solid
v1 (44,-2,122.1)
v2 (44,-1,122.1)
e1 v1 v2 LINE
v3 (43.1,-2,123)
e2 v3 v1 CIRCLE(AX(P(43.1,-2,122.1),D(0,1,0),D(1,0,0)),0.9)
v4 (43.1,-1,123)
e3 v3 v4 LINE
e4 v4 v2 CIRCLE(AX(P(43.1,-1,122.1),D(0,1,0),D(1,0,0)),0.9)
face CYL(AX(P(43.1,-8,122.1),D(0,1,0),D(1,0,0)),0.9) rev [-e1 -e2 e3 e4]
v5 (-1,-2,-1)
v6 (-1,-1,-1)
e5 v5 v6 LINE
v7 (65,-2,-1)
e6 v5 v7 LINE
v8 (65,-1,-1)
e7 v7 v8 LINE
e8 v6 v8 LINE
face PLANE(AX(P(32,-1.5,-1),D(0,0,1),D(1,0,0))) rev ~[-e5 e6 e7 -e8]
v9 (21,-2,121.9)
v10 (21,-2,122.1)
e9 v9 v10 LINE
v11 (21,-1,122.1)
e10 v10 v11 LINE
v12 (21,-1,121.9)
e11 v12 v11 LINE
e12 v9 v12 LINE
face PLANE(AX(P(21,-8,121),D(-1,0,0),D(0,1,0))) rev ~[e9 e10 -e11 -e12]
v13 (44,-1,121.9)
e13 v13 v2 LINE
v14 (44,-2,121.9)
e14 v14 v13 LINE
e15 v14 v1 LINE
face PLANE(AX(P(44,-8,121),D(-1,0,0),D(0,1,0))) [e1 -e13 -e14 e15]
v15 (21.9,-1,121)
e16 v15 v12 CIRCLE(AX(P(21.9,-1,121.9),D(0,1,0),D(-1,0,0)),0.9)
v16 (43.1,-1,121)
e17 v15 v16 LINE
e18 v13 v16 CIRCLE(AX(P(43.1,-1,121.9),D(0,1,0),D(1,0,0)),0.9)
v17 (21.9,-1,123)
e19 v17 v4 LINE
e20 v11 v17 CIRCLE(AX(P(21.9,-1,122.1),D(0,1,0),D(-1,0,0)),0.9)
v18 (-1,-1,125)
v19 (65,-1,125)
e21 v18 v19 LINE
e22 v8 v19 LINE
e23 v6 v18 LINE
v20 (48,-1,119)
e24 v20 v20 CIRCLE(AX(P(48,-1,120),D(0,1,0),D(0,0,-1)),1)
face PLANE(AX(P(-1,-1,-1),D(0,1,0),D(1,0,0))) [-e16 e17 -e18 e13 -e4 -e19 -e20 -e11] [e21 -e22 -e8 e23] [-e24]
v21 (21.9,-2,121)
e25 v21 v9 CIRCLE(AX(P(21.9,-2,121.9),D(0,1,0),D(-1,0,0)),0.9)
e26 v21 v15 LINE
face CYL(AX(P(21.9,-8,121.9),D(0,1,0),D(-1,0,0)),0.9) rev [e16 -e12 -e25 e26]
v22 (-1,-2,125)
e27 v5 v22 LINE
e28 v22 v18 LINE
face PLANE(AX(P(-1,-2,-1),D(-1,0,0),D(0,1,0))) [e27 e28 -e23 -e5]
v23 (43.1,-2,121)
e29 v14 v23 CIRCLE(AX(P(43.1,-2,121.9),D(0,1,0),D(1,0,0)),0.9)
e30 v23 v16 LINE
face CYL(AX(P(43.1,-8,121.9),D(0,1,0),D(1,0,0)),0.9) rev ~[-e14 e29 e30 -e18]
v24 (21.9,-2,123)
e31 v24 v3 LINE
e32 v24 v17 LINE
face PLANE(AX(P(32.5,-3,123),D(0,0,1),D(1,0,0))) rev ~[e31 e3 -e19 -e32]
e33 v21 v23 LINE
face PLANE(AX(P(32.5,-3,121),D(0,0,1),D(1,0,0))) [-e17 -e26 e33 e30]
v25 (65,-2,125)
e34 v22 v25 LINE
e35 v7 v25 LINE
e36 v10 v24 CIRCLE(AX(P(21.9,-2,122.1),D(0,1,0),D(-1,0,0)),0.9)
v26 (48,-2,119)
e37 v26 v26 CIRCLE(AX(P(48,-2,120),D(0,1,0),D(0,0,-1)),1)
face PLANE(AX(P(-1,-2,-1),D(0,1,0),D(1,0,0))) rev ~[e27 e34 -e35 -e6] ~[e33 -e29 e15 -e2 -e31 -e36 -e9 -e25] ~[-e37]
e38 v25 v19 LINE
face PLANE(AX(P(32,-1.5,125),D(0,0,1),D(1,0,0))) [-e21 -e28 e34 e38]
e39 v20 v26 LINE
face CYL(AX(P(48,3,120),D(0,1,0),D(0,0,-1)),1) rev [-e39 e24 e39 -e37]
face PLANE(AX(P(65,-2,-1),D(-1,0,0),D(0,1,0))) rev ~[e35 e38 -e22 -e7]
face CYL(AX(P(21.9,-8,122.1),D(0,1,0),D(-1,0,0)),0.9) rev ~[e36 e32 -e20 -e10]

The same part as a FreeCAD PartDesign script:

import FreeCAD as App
import Part
import Sketcher
from FreeCAD import Vector


def edges_at(feature, points):
    """Names of the edges that pass closest to the given points."""
    edges = feature.Shape.Edges
    near = lambda p: min(range(len(edges)), key=lambda i: edges[i].distToShape(Part.Vertex(*p))[0])
    return sorted({f"Edge{near(p) + 1}" for p in points})


def add_polygon(sketch, points):
    """Adds a closed chain of lines whose ends are joined by coincident constraints."""
    first, n = sketch.GeometryCount, len(points)
    for a, b in zip(points, points[1:] + points[:1]):
        sketch.addGeometry(Part.LineSegment(App.Vector(*a, 0), App.Vector(*b, 0)), False)
    for i in range(n):
        sketch.addConstraint(Sketcher.Constraint("Coincident", first + i, 2, first + (i + 1) % n, 1))

doc = App.newDocument("Part")
body = doc.addObject("PartDesign::Body", "Body")

# Sketch on XZ plane
sketch1 = body.newObject("Sketcher::SketchObject", "Sketch")
sketch1.AttachmentSupport = (doc.getObject("XZ_Plane"), [""])
sketch1.MapMode = "FlatFace"
sketch1.AttachmentOffset = App.Placement(Vector(0, 0, -3), App.Rotation())
sketch1.addGeometry(Part.Circle(Vector(48, 120, 0), Vector(0, 0, 1), 1), False)
sketch1.addConstraint(Sketcher.Constraint("Diameter", 0, 2.0))
sketch1.addConstraint(Sketcher.Constraint("DistanceX", -1, 1, 0, 3, 48.0))
sketch1.addConstraint(Sketcher.Constraint("DistanceY", -1, 1, 0, 3, 120.0))
pad1 = body.newObject("PartDesign::Pad", "Pad")
pad1.Profile = sketch1
pad1.Length = 10
body2 = doc.addObject("PartDesign::Body", "Body001")

# Sketch on XY plane
sketch2 = body2.newObject("Sketcher::SketchObject", "Sketch001")
sketch2.AttachmentSupport = (doc.getObject("XY_Plane001"), [""])
sketch2.MapMode = "FlatFace"
sketch2.AttachmentOffset = App.Placement(Vector(0, 0, 121), App.Rotation())
add_polygon(sketch2, [(21, 8), (21, -2), (44, -2), (44, 8)])  # lines 0-3
sketch2.addConstraint(Sketcher.Constraint("Vertical", 0))
sketch2.addConstraint(Sketcher.Constraint("Horizontal", 1))
sketch2.addConstraint(Sketcher.Constraint("Vertical", 2))
sketch2.addConstraint(Sketcher.Constraint("Horizontal", 3))
sketch2.addConstraint(Sketcher.Constraint("DistanceX", 1, 1, 1, 2, 23.0))
sketch2.addConstraint(Sketcher.Constraint("DistanceY", 0, 2, 0, 1, 10.0))
sketch2.addConstraint(Sketcher.Constraint("DistanceX", -1, 1, 0, 2, 21.0))
sketch2.addConstraint(Sketcher.Constraint("DistanceY", 0, 2, -1, 1, 2.0))
pad2 = body2.newObject("PartDesign::Pad", "Pad001")
pad2.Profile = sketch2
pad2.Length = 2
doc.recompute()

fillet = body2.newObject("PartDesign::Fillet", "Fillet")
fillet.Base = (pad2, edges_at(pad2, [
    (21, 3, 123),
    (21, 3, 121),
    (44, 3, 123),
    (44, 3, 121),
]))
fillet.Radius = 0.9
body3 = doc.addObject("PartDesign::Body", "Body002")
doc.recompute()

body2.Placement = App.Placement(Vector(0, -6, 0), App.Rotation(Vector(0, 0, 1), 0))
boolean = body3.newObject("PartDesign::Boolean", "Boolean")
boolean.Type = "Fuse"
boolean.addObjects([body2])
body4 = doc.addObject("PartDesign::Body", "Body003")

# Sketch on XZ plane
sketch3 = body4.newObject("Sketcher::SketchObject", "Sketch002")
sketch3.AttachmentSupport = (doc.getObject("XZ_Plane003"), [""])
sketch3.MapMode = "FlatFace"
sketch3.AttachmentOffset = App.Placement(Vector(0, 0, -2), App.Rotation())
sketch3.addGeometry(Part.Circle(Vector(32, 118, 0), Vector(0, 0, 1), 1), False)
sketch3.addConstraint(Sketcher.Constraint("Diameter", 0, 2.0))
sketch3.addConstraint(Sketcher.Constraint("DistanceX", -1, 1, 0, 3, 32.0))
sketch3.addConstraint(Sketcher.Constraint("DistanceY", -1, 1, 0, 3, 118.0))
pad3 = body4.newObject("PartDesign::Pad", "Pad002")
pad3.Profile = sketch3
pad3.Length = 2
body5 = doc.addObject("PartDesign::Body", "Body004")

# Sketch on XY plane
sketch4 = body5.newObject("Sketcher::SketchObject", "Sketch003")
sketch4.AttachmentSupport = (doc.getObject("XY_Plane004"), [""])
sketch4.MapMode = "FlatFace"
sketch4.AttachmentOffset = App.Placement(Vector(0, 0, -1), App.Rotation())
add_polygon(sketch4, [(-1, -1), (-1, -2), (65, -2), (65, -1)])  # lines 0-3
sketch4.addConstraint(Sketcher.Constraint("Vertical", 0))
sketch4.addConstraint(Sketcher.Constraint("Horizontal", 1))
sketch4.addConstraint(Sketcher.Constraint("Vertical", 2))
sketch4.addConstraint(Sketcher.Constraint("Horizontal", 3))
sketch4.addConstraint(Sketcher.Constraint("DistanceX", 1, 1, 1, 2, 66.0))
sketch4.addConstraint(Sketcher.Constraint("DistanceY", 0, 2, 0, 1, 1.0))
sketch4.addConstraint(Sketcher.Constraint("DistanceX", 0, 2, -1, 1, 1.0))
sketch4.addConstraint(Sketcher.Constraint("DistanceY", 0, 2, -1, 1, 2.0))
pad4 = body5.newObject("PartDesign::Pad", "Pad003")
pad4.Profile = sketch4
pad4.Length = 126
doc.recompute()

boolean2 = body5.newObject("PartDesign::Boolean", "Boolean001")
boolean2.Type = "Cut"
boolean2.addObjects([body4])
doc.recompute()

boolean3 = body5.newObject("PartDesign::Boolean", "Boolean002")
boolean3.Type = "Cut"
boolean3.addObjects([body3])
doc.recompute()

boolean4 = body5.newObject("PartDesign::Boolean", "Boolean003")
boolean4.Type = "Cut"
boolean4.addObjects([body])

doc.recompute()
